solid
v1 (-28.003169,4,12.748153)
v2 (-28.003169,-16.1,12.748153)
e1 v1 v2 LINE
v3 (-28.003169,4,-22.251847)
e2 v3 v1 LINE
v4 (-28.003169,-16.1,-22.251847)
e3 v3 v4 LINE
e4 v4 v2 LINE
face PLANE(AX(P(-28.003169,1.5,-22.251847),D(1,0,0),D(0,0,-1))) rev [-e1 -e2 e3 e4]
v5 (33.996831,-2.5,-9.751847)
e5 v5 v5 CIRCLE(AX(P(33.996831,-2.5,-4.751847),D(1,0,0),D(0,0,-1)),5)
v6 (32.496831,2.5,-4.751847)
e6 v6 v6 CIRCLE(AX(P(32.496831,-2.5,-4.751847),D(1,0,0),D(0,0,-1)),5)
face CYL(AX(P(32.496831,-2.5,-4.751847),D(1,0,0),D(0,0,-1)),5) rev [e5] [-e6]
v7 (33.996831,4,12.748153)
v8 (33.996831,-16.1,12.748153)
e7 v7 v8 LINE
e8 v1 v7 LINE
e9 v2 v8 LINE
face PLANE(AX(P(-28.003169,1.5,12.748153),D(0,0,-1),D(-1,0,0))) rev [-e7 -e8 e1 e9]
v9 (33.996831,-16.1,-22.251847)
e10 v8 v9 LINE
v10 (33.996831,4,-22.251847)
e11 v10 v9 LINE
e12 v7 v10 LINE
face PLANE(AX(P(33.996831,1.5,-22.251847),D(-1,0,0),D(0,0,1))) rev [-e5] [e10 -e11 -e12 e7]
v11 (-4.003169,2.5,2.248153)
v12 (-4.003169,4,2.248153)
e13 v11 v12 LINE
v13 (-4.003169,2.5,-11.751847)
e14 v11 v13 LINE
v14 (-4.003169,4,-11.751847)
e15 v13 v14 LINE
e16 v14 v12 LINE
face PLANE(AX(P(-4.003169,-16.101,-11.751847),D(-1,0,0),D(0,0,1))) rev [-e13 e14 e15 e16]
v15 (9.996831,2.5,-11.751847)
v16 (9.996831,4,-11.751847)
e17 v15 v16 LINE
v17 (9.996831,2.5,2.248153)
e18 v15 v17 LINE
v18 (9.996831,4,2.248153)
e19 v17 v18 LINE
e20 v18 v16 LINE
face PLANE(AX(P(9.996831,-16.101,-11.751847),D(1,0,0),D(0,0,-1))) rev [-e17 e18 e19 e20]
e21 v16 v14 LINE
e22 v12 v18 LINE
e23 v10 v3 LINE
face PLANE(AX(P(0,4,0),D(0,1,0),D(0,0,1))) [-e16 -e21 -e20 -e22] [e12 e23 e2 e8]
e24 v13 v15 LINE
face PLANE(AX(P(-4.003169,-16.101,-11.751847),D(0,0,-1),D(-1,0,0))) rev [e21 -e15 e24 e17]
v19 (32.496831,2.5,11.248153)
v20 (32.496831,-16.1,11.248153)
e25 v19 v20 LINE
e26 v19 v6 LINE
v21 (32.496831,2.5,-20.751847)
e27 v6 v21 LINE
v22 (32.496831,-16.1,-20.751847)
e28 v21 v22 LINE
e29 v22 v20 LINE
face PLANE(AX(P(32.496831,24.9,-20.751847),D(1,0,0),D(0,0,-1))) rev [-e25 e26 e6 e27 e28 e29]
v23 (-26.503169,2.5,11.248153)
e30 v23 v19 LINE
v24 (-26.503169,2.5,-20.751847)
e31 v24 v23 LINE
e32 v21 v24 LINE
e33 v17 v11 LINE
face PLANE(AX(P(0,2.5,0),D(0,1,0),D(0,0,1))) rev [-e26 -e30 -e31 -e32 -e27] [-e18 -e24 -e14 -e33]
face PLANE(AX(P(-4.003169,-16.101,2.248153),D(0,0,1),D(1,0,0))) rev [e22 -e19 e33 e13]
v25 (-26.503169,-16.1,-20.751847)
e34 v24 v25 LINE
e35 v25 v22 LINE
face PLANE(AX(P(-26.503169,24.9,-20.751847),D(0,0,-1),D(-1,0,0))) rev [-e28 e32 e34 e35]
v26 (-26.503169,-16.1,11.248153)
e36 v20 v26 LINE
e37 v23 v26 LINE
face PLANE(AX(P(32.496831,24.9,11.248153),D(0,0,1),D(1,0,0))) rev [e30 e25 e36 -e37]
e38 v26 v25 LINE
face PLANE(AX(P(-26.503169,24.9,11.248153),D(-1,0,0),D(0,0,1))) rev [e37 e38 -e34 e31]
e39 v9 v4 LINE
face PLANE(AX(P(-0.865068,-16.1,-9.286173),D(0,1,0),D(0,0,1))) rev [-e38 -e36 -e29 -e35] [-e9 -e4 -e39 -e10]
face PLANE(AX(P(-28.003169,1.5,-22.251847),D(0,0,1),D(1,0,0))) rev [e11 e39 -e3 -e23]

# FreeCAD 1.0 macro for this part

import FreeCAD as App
import Part
import Sketcher

doc = App.newDocument("Part")
body = doc.addObject("PartDesign::Body", "Body")

sketch1 = doc.addObject("Sketcher::SketchObject", "Sketch")
body.addObject(sketch1)
sketch1.AttachmentSupport = (doc.XZ_Plane, [""])
sketch1.MapMode = "FlatFace"
sketch1.addGeometry(Part.LineSegment(App.Vector(-28.003169, -22.251847, 0), App.Vector(-28.003169, 12.748153, 0)), False)
sketch1.addGeometry(Part.LineSegment(App.Vector(-28.003169, 12.748153, 0), App.Vector(33.996831, 12.748153, 0)), False)
sketch1.addGeometry(Part.LineSegment(App.Vector(33.996831, 12.748153, 0), App.Vector(33.996831, -22.251847, 0)), False)
sketch1.addGeometry(Part.LineSegment(App.Vector(33.996831, -22.251847, 0), App.Vector(-28.003169, -22.251847, 0)), False)
sketch1.addConstraint(Sketcher.Constraint("Coincident", 0, 2, 1, 1))
sketch1.addConstraint(Sketcher.Constraint("Coincident", 1, 2, 2, 1))
sketch1.addConstraint(Sketcher.Constraint("Coincident", 2, 2, 3, 1))
sketch1.addConstraint(Sketcher.Constraint("Coincident", 3, 2, 0, 1))
sketch1.addConstraint(Sketcher.Constraint("Vertical", 0))
sketch1.addConstraint(Sketcher.Constraint("Horizontal", 1))
sketch1.addConstraint(Sketcher.Constraint("Vertical", 2))
sketch1.addConstraint(Sketcher.Constraint("Horizontal", 3))
sketch1.addConstraint(Sketcher.Constraint("DistanceX", 1, 1, 1, 2, 62.0))
sketch1.addConstraint(Sketcher.Constraint("DistanceY", 0, 1, 0, 2, 35.0))
sketch1.addConstraint(Sketcher.Constraint("DistanceX", 0, 2, -1, 1, 28.003169))
sketch1.addConstraint(Sketcher.Constraint("DistanceY", -1, 1, 0, 2, 12.748153))
pad1 = doc.addObject("PartDesign::Pad", "Pad")
body.addObject(pad1)
pad1.Profile = sketch1
pad1.Length = 1.5
pad1.Reversed = True

sketch2 = doc.addObject("Sketcher::SketchObject", "Sketch001")
body.addObject(sketch2)
sketch2.AttachmentSupport = (doc.XZ_Plane, [""])
sketch2.MapMode = "FlatFace"
sketch2.addGeometry(Part.LineSegment(App.Vector(-28.003169, 12.748153, 0), App.Vector(-28.003169, -22.251847, 0)), False)
sketch2.addGeometry(Part.LineSegment(App.Vector(-28.003169, -22.251847, 0), App.Vector(33.996831, -22.251847, 0)), False)
sketch2.addGeometry(Part.LineSegment(App.Vector(33.996831, -22.251847, 0), App.Vector(33.996831, 12.748153, 0)), False)
sketch2.addGeometry(Part.LineSegment(App.Vector(33.996831, 12.748153, 0), App.Vector(-28.003169, 12.748153, 0)), False)
sketch2.addConstraint(Sketcher.Constraint("Coincident", 0, 2, 1, 1))
sketch2.addConstraint(Sketcher.Constraint("Coincident", 1, 2, 2, 1))
sketch2.addConstraint(Sketcher.Constraint("Coincident", 2, 2, 3, 1))
sketch2.addConstraint(Sketcher.Constraint("Coincident", 3, 2, 0, 1))
sketch2.addConstraint(Sketcher.Constraint("Vertical", 0))
sketch2.addConstraint(Sketcher.Constraint("Horizontal", 1))
sketch2.addConstraint(Sketcher.Constraint("Vertical", 2))
sketch2.addConstraint(Sketcher.Constraint("Horizontal", 3))
sketch2.addConstraint(Sketcher.Constraint("DistanceX", 1, 1, 1, 2, 62.0))
sketch2.addConstraint(Sketcher.Constraint("DistanceY", 0, 2, 0, 1, 35.0))
sketch2.addConstraint(Sketcher.Constraint("DistanceX", 0, 2, -1, 1, 28.003169))
sketch2.addConstraint(Sketcher.Constraint("DistanceY", 0, 2, -1, 1, 22.251847))
pad2 = doc.addObject("PartDesign::Pad", "Pad001")
body.addObject(pad2)
pad2.Profile = sketch2
pad2.Length = 16.1

sketch3 = doc.addObject("Sketcher::SketchObject", "Sketch002")
body.addObject(sketch3)
sketch3.AttachmentSupport = (doc.XZ_Plane, [""])
sketch3.MapMode = "FlatFace"
sketch3.AttachmentOffset = App.Placement(App.Vector(0, 0, 16.1), App.Rotation())
sketch3.addGeometry(Part.LineSegment(App.Vector(-26.503169, 11.248153, 0), App.Vector(-26.503169, -20.751847, 0)), False)
sketch3.addGeometry(Part.LineSegment(App.Vector(-26.503169, -20.751847, 0), App.Vector(32.496831, -20.751847, 0)), False)
sketch3.addGeometry(Part.LineSegment(App.Vector(32.496831, -20.751847, 0), App.Vector(32.496831, 11.248153, 0)), False)
sketch3.addGeometry(Part.LineSegment(App.Vector(32.496831, 11.248153, 0), App.Vector(-26.503169, 11.248153, 0)), False)
sketch3.addConstraint(Sketcher.Constraint("Coincident", 0, 2, 1, 1))
sketch3.addConstraint(Sketcher.Constraint("Coincident", 1, 2, 2, 1))
sketch3.addConstraint(Sketcher.Constraint("Coincident", 2, 2, 3, 1))
sketch3.addConstraint(Sketcher.Constraint("Coincident", 3, 2, 0, 1))
sketch3.addConstraint(Sketcher.Constraint("Vertical", 0))
sketch3.addConstraint(Sketcher.Constraint("Horizontal", 1))
sketch3.addConstraint(Sketcher.Constraint("Vertical", 2))
sketch3.addConstraint(Sketcher.Constraint("Horizontal", 3))
sketch3.addConstraint(Sketcher.Constraint("DistanceX", 1, 1, 1, 2, 59.0))
sketch3.addConstraint(Sketcher.Constraint("DistanceY", 0, 2, 0, 1, 32.0))
sketch3.addConstraint(Sketcher.Constraint("DistanceX", 0, 2, -1, 1, 26.503169))
sketch3.addConstraint(Sketcher.Constraint("DistanceY", 0, 2, -1, 1, 20.751847))
pocket1 = doc.addObject("PartDesign::Pocket", "Pocket")
body.addObject(pocket1)
pocket1.Profile = sketch3
pocket1.Length = 41

sketch4 = doc.addObject("Sketcher::SketchObject", "Sketch003")
body.addObject(sketch4)
sketch4.AttachmentSupport = (doc.XZ_Plane, [""])
sketch4.MapMode = "FlatFace"
sketch4.AttachmentOffset = App.Placement(App.Vector(0, 0, -1.5), App.Rotation())
sketch4.addGeometry(Part.LineSegment(App.Vector(-28.003169, -22.251847, 0), App.Vector(-28.003169, 12.748153, 0)), False)
sketch4.addGeometry(Part.LineSegment(App.Vector(-28.003169, 12.748153, 0), App.Vector(33.996831, 12.748153, 0)), False)
sketch4.addGeometry(Part.LineSegment(App.Vector(33.996831, 12.748153, 0), App.Vector(33.996831, -22.251847, 0)), False)
sketch4.addGeometry(Part.LineSegment(App.Vector(33.996831, -22.251847, 0), App.Vector(-28.003169, -22.251847, 0)), False)
sketch4.addGeometry(Part.LineSegment(App.Vector(32.496831, 11.248153, 0), App.Vector(-26.503169, 11.248153, 0)), False)
sketch4.addGeometry(Part.LineSegment(App.Vector(-26.503169, 11.248153, 0), App.Vector(-26.503169, -20.751847, 0)), False)
sketch4.addGeometry(Part.LineSegment(App.Vector(-26.503169, -20.751847, 0), App.Vector(32.496831, -20.751847, 0)), False)
sketch4.addGeometry(Part.LineSegment(App.Vector(32.496831, -20.751847, 0), App.Vector(32.496831, 11.248153, 0)), False)
sketch4.addConstraint(Sketcher.Constraint("Coincident", 0, 2, 1, 1))
sketch4.addConstraint(Sketcher.Constraint("Coincident", 1, 2, 2, 1))
sketch4.addConstraint(Sketcher.Constraint("Coincident", 2, 2, 3, 1))
sketch4.addConstraint(Sketcher.Constraint("Coincident", 3, 2, 0, 1))
sketch4.addConstraint(Sketcher.Constraint("Coincident", 4, 2, 5, 1))
sketch4.addConstraint(Sketcher.Constraint("Coincident", 5, 2, 6, 1))
sketch4.addConstraint(Sketcher.Constraint("Coincident", 6, 2, 7, 1))
sketch4.addConstraint(Sketcher.Constraint("Coincident", 7, 2, 4, 1))
sketch4.addConstraint(Sketcher.Constraint("Vertical", 0))
sketch4.addConstraint(Sketcher.Constraint("Horizontal", 1))
sketch4.addConstraint(Sketcher.Constraint("Vertical", 2))
sketch4.addConstraint(Sketcher.Constraint("Horizontal", 3))
sketch4.addConstraint(Sketcher.Constraint("Horizontal", 4))
sketch4.addConstraint(Sketcher.Constraint("Vertical", 5))
sketch4.addConstraint(Sketcher.Constraint("Horizontal", 6))
sketch4.addConstraint(Sketcher.Constraint("Vertical", 7))
sketch4.addConstraint(Sketcher.Constraint("DistanceX", 1, 1, 1, 2, 62.0))
sketch4.addConstraint(Sketcher.Constraint("DistanceX", 4, 2, 4, 1, 59.0))
sketch4.addConstraint(Sketcher.Constraint("DistanceY", 0, 1, 0, 2, 35.0))
sketch4.addConstraint(Sketcher.Constraint("DistanceY", 5, 2, 5, 1, 32.0))
sketch4.addConstraint(Sketcher.Constraint("DistanceX", 0, 2, 4, 2, 1.5))
sketch4.addConstraint(Sketcher.Constraint("DistanceY", 4, 2, 0, 2, 1.5))
sketch4.addConstraint(Sketcher.Constraint("DistanceX", 0, 2, -1, 1, 28.003169))
sketch4.addConstraint(Sketcher.Constraint("DistanceY", -1, 1, 0, 2, 12.748153))
pad3 = doc.addObject("PartDesign::Pad", "Pad002")
body.addObject(pad3)
pad3.Profile = sketch4
pad3.Length = 1
pad3.Reversed = True

sketch5 = doc.addObject("Sketcher::SketchObject", "Sketch004")
body.addObject(sketch5)
sketch5.AttachmentSupport = (doc.XZ_Plane, [""])
sketch5.MapMode = "FlatFace"
sketch5.AttachmentOffset = App.Placement(App.Vector(0, 0, -2.5), App.Rotation())
sketch5.addGeometry(Part.LineSegment(App.Vector(-28.003169, -22.251847, 0), App.Vector(-28.003169, 12.748153, 0)), False)
sketch5.addGeometry(Part.LineSegment(App.Vector(-28.003169, 12.748153, 0), App.Vector(33.996831, 12.748153, 0)), False)
sketch5.addGeometry(Part.LineSegment(App.Vector(33.996831, 12.748153, 0), App.Vector(33.996831, -22.251847, 0)), False)
sketch5.addGeometry(Part.LineSegment(App.Vector(33.996831, -22.251847, 0), App.Vector(-28.003169, -22.251847, 0)), False)
sketch5.addConstraint(Sketcher.Constraint("Coincident", 0, 2, 1, 1))
sketch5.addConstraint(Sketcher.Constraint("Coincident", 1, 2, 2, 1))
sketch5.addConstraint(Sketcher.Constraint("Coincident", 2, 2, 3, 1))
sketch5.addConstraint(Sketcher.Constraint("Coincident", 3, 2, 0, 1))
sketch5.addConstraint(Sketcher.Constraint("Vertical", 0))
sketch5.addConstraint(Sketcher.Constraint("Horizontal", 1))
sketch5.addConstraint(Sketcher.Constraint("Vertical", 2))
sketch5.addConstraint(Sketcher.Constraint("Horizontal", 3))
sketch5.addConstraint(Sketcher.Constraint("DistanceX", 1, 1, 1, 2, 62.0))
sketch5.addConstraint(Sketcher.Constraint("DistanceY", 0, 1, 0, 2, 35.0))
sketch5.addConstraint(Sketcher.Constraint("DistanceX", 0, 2, -1, 1, 28.003169))
sketch5.addConstraint(Sketcher.Constraint("DistanceY", -1, 1, 0, 2, 12.748153))
pad4 = doc.addObject("PartDesign::Pad", "Pad003")
body.addObject(pad4)
pad4.Profile = sketch5
pad4.Length = 1.5
pad4.Reversed = True

sketch6 = doc.addObject("Sketcher::SketchObject", "Sketch005")
body.addObject(sketch6)
sketch6.AttachmentSupport = (doc.YZ_Plane, [""])
sketch6.MapMode = "FlatFace"
sketch6.AttachmentOffset = App.Placement(App.Vector(0, 0, 33.996831), App.Rotation())
sketch6.addGeometry(Part.Circle(App.Vector(-2.5, -4.751847, 0), App.Vector(0, 0, 1), 5), False)
sketch6.addConstraint(Sketcher.Constraint("Diameter", 0, 10.0))
sketch6.addConstraint(Sketcher.Constraint("DistanceX", 0, 3, -1, 1, 2.5))
sketch6.addConstraint(Sketcher.Constraint("DistanceY", 0, 3, -1, 1, 4.751847))
pocket2 = doc.addObject("PartDesign::Pocket", "Pocket001")
body.addObject(pocket2)
pocket2.Profile = sketch6
pocket2.Length = 1.5

sketch7 = doc.addObject("Sketcher::SketchObject", "Sketch006")
body.addObject(sketch7)
sketch7.AttachmentSupport = (doc.XZ_Plane, [""])
sketch7.MapMode = "FlatFace"
sketch7.AttachmentOffset = App.Placement(App.Vector(0, 0, -4), App.Rotation())
sketch7.addGeometry(Part.LineSegment(App.Vector(-4.003169, -11.751847, 0), App.Vector(-4.003169, 2.248153, 0)), False)
sketch7.addGeometry(Part.LineSegment(App.Vector(-4.003169, 2.248153, 0), App.Vector(9.996831, 2.248153, 0)), False)
sketch7.addGeometry(Part.LineSegment(App.Vector(9.996831, 2.248153, 0), App.Vector(9.996831, -11.751847, 0)), False)
sketch7.addGeometry(Part.LineSegment(App.Vector(9.996831, -11.751847, 0), App.Vector(-4.003169, -11.751847, 0)), False)
sketch7.addConstraint(Sketcher.Constraint("Coincident", 0, 2, 1, 1))
sketch7.addConstraint(Sketcher.Constraint("Coincident", 1, 2, 2, 1))
sketch7.addConstraint(Sketcher.Constraint("Coincident", 2, 2, 3, 1))
sketch7.addConstraint(Sketcher.Constraint("Coincident", 3, 2, 0, 1))
sketch7.addConstraint(Sketcher.Constraint("Vertical", 0))
sketch7.addConstraint(Sketcher.Constraint("Horizontal", 1))
sketch7.addConstraint(Sketcher.Constraint("Vertical", 2))
sketch7.addConstraint(Sketcher.Constraint("Horizontal", 3))
sketch7.addConstraint(Sketcher.Constraint("Equal", 3, 0))
sketch7.addConstraint(Sketcher.Constraint("DistanceX", 1, 1, 1, 2, 14.0))
sketch7.addConstraint(Sketcher.Constraint("DistanceX", 0, 2, -1, 1, 4.003169))
sketch7.addConstraint(Sketcher.Constraint("DistanceY", -1, 1, 0, 2, 2.248153))
pocket3 = doc.addObject("PartDesign::Pocket", "Pocket002")
body.addObject(pocket3)
pocket3.Profile = sketch7
pocket3.Type = "UpToFirst"
pocket3.Reversed = True

doc.recompute()
